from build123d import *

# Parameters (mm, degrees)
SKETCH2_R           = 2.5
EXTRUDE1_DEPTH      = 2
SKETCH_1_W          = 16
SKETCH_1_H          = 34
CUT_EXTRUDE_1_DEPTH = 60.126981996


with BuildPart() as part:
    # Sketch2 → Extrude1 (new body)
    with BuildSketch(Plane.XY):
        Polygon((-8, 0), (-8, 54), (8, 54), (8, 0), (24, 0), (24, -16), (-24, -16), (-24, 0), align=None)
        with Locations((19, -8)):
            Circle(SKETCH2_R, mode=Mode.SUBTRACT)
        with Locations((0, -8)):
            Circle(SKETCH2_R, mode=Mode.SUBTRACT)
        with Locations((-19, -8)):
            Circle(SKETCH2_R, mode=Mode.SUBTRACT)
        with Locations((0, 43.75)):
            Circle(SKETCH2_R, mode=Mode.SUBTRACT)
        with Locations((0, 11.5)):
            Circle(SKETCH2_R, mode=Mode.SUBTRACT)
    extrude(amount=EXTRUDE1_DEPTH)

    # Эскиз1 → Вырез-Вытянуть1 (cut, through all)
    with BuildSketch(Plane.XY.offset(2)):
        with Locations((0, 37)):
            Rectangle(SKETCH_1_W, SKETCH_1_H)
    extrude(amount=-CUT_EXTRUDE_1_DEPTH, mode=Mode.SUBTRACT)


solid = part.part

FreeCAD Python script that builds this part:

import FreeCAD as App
import Part
import Sketcher
Q = App.Units.Quantity

doc = App.newDocument("Part")
params = doc.addObject("Spreadsheet::Sheet", "Params")
for row, (alias, value) in enumerate([
    ("sketch1_diameter", "5 mm"),
    ("sketch1_width", "16 mm"),
    ("sketch1_height", "54 mm"),
    ("pad1_length", "2 mm"),
    ("sketch2_width", "16 mm"),
    ("sketch2_height", "34 mm"),
], start=1):
    params.set(f"A{row}", alias)
    params.set(f"B{row}", "=" + value)
    params.setAlias(f"B{row}", alias)

body = doc.addObject("PartDesign::Body", "Body")

# Sketch on XY plane
sketch1 = doc.addObject("Sketcher::SketchObject", "Sketch")
body.addObject(sketch1)
sketch1.AttachmentSupport = (doc.XY_Plane, [""])
sketch1.MapMode = "FlatFace"
sketch1.addGeometry(Part.LineSegment(App.Vector(-8, 54, 0), App.Vector(-8, 0, 0)), False)
sketch1.addGeometry(Part.LineSegment(App.Vector(-8, 0, 0), App.Vector(-24, 0, 0)), False)
sketch1.addGeometry(Part.LineSegment(App.Vector(-24, 0, 0), App.Vector(-24, -16, 0)), False)
sketch1.addGeometry(Part.LineSegment(App.Vector(-24, -16, 0), App.Vector(24, -16, 0)), False)
sketch1.addGeometry(Part.LineSegment(App.Vector(24, -16, 0), App.Vector(24, 0, 0)), False)
sketch1.addGeometry(Part.LineSegment(App.Vector(24, 0, 0), App.Vector(8, 0, 0)), False)
sketch1.addGeometry(Part.LineSegment(App.Vector(8, 0, 0), App.Vector(8, 54, 0)), False)
sketch1.addGeometry(Part.LineSegment(App.Vector(8, 54, 0), App.Vector(-8, 54, 0)), False)
sketch1.addGeometry(Part.Circle(App.Vector(19, -8, 0), App.Vector(0, 0, 1), 2.5), False)
sketch1.addGeometry(Part.Circle(App.Vector(0, -8, 0), App.Vector(0, 0, 1), 2.5), False)
sketch1.addGeometry(Part.Circle(App.Vector(-19, -8, 0), App.Vector(0, 0, 1), 2.5), False)
sketch1.addGeometry(Part.Circle(App.Vector(0, 11.5, 0), App.Vector(0, 0, 1), 2.5), False)
sketch1.addGeometry(Part.Circle(App.Vector(0, 43.75, 0), App.Vector(0, 0, 1), 2.5), False)
sketch1.addConstraint(Sketcher.Constraint("Coincident", 0, 2, 1, 1))
sketch1.addConstraint(Sketcher.Constraint("Coincident", 1, 2, 2, 1))
sketch1.addConstraint(Sketcher.Constraint("Coincident", 2, 2, 3, 1))
sketch1.addConstraint(Sketcher.Constraint("Coincident", 3, 2, 4, 1))
sketch1.addConstraint(Sketcher.Constraint("Coincident", 4, 2, 5, 1))
sketch1.addConstraint(Sketcher.Constraint("Coincident", 5, 2, 6, 1))
sketch1.addConstraint(Sketcher.Constraint("Coincident", 6, 2, 7, 1))
sketch1.addConstraint(Sketcher.Constraint("Coincident", 7, 2, 0, 1))
sketch1.addConstraint(Sketcher.Constraint("Vertical", 0))
sketch1.addConstraint(Sketcher.Constraint("Horizontal", 1))
sketch1.addConstraint(Sketcher.Constraint("Vertical", 2))
sketch1.addConstraint(Sketcher.Constraint("Horizontal", 3))
sketch1.addConstraint(Sketcher.Constraint("Vertical", 4))
sketch1.addConstraint(Sketcher.Constraint("Horizontal", 5))
sketch1.addConstraint(Sketcher.Constraint("Vertical", 6))
sketch1.addConstraint(Sketcher.Constraint("Horizontal", 7))
sketch1.addConstraint(Sketcher.Constraint("Equal", 8, 9))
sketch1.addConstraint(Sketcher.Constraint("Equal", 9, 10))
sketch1.addConstraint(Sketcher.Constraint("Equal", 10, 11))
sketch1.addConstraint(Sketcher.Constraint("Equal", 11, 12))
sketch1.addConstraint(Sketcher.Constraint("Symmetric", 1, 2, 4, 2, -1, 1))
sketch1.addConstraint(Sketcher.Constraint("Symmetric", 8, 3, 10, 3, -2))
sketch1.addConstraint(Sketcher.Constraint("Symmetric", 0, 2, 5, 2, -2))
sketch1.addConstraint(Sketcher.Constraint("PointOnObject", 9, 3, -2))
sketch1.addConstraint(Sketcher.Constraint("PointOnObject", 11, 3, -2))
sketch1.addConstraint(Sketcher.Constraint("PointOnObject", 12, 3, -2))
sketch1.addConstraint(Sketcher.Constraint("Horizontal", 8, 3, 9, 3))
sketch1.addConstraint(Sketcher.Constraint("Equal", 5, 7))
sketch1.addConstraint(Sketcher.Constraint("Equal", 7, 2))
sketch1.addConstraint(Sketcher.Constraint("Diameter", 8, Q("5 mm")))
sketch1.addConstraint(Sketcher.Constraint("DistanceX", 1, 2, 1, 1, Q("16 mm")))
sketch1.addConstraint(Sketcher.Constraint("DistanceY", 0, 2, 0, 1, Q("54 mm")))
sketch1.addConstraint(Sketcher.Constraint("DistanceX", -1, 1, 8, 3, Q("19 mm")))
sketch1.addConstraint(Sketcher.Constraint("DistanceY", 8, 3, -1, 1, Q("8 mm")))
sketch1.addConstraint(Sketcher.Constraint("DistanceY", -1, 1, 11, 3, Q("11.5 mm")))
sketch1.addConstraint(Sketcher.Constraint("DistanceY", -1, 1, 12, 3, Q("43.75 mm")))
sketch1.setExpression("Constraints[29]", "Params.sketch1_diameter")
sketch1.setExpression("Constraints[30]", "Params.sketch1_width")
sketch1.setExpression("Constraints[31]", "Params.sketch1_height")
pad1 = doc.addObject("PartDesign::Pad", "Pad")
body.addObject(pad1)
pad1.Profile = sketch1
pad1.setExpression("Length", "Params.pad1_length")

# Sketch on XY plane
sketch2 = doc.addObject("Sketcher::SketchObject", "Sketch001")
body.addObject(sketch2)
sketch2.AttachmentSupport = (doc.XY_Plane, [""])
sketch2.MapMode = "FlatFace"
sketch2.AttachmentOffset = App.Placement(App.Vector(0, 0, 2), App.Rotation())
sketch2.addGeometry(Part.LineSegment(App.Vector(-8, 54, 0), App.Vector(-8, 20, 0)), False)
sketch2.addGeometry(Part.LineSegment(App.Vector(-8, 20, 0), App.Vector(8, 20, 0)), False)
sketch2.addGeometry(Part.LineSegment(App.Vector(8, 20, 0), App.Vector(8, 54, 0)), False)
sketch2.addGeometry(Part.LineSegment(App.Vector(8, 54, 0), App.Vector(-8, 54, 0)), False)
sketch2.addConstraint(Sketcher.Constraint("Coincident", 0, 2, 1, 1))
sketch2.addConstraint(Sketcher.Constraint("Coincident", 1, 2, 2, 1))
sketch2.addConstraint(Sketcher.Constraint("Coincident", 2, 2, 3, 1))
sketch2.addConstraint(Sketcher.Constraint("Coincident", 3, 2, 0, 1))
sketch2.addConstraint(Sketcher.Constraint("Vertical", 0))
sketch2.addConstraint(Sketcher.Constraint("Horizontal", 1))
sketch2.addConstraint(Sketcher.Constraint("Vertical", 2))
sketch2.addConstraint(Sketcher.Constraint("Horizontal", 3))
sketch2.addConstraint(Sketcher.Constraint("DistanceX", 1, 1, 1, 2, Q("16 mm")))
sketch2.addConstraint(Sketcher.Constraint("DistanceY", 0, 2, 0, 1, Q("34 mm")))
sketch2.addConstraint(Sketcher.Constraint("DistanceX", 0, 2, -1, 1, Q("8 mm")))
sketch2.addConstraint(Sketcher.Constraint("DistanceY", -1, 1, 0, 2, Q("20 mm")))
sketch2.setExpression("Constraints[8]", "Params.sketch2_width")
sketch2.setExpression("Constraints[9]", "Params.sketch2_height")
pocket1 = doc.addObject("PartDesign::Pocket", "Pocket")
body.addObject(pocket1)
pocket1.Profile = sketch2
pocket1.Type = "ThroughAll"

doc.recompute()
